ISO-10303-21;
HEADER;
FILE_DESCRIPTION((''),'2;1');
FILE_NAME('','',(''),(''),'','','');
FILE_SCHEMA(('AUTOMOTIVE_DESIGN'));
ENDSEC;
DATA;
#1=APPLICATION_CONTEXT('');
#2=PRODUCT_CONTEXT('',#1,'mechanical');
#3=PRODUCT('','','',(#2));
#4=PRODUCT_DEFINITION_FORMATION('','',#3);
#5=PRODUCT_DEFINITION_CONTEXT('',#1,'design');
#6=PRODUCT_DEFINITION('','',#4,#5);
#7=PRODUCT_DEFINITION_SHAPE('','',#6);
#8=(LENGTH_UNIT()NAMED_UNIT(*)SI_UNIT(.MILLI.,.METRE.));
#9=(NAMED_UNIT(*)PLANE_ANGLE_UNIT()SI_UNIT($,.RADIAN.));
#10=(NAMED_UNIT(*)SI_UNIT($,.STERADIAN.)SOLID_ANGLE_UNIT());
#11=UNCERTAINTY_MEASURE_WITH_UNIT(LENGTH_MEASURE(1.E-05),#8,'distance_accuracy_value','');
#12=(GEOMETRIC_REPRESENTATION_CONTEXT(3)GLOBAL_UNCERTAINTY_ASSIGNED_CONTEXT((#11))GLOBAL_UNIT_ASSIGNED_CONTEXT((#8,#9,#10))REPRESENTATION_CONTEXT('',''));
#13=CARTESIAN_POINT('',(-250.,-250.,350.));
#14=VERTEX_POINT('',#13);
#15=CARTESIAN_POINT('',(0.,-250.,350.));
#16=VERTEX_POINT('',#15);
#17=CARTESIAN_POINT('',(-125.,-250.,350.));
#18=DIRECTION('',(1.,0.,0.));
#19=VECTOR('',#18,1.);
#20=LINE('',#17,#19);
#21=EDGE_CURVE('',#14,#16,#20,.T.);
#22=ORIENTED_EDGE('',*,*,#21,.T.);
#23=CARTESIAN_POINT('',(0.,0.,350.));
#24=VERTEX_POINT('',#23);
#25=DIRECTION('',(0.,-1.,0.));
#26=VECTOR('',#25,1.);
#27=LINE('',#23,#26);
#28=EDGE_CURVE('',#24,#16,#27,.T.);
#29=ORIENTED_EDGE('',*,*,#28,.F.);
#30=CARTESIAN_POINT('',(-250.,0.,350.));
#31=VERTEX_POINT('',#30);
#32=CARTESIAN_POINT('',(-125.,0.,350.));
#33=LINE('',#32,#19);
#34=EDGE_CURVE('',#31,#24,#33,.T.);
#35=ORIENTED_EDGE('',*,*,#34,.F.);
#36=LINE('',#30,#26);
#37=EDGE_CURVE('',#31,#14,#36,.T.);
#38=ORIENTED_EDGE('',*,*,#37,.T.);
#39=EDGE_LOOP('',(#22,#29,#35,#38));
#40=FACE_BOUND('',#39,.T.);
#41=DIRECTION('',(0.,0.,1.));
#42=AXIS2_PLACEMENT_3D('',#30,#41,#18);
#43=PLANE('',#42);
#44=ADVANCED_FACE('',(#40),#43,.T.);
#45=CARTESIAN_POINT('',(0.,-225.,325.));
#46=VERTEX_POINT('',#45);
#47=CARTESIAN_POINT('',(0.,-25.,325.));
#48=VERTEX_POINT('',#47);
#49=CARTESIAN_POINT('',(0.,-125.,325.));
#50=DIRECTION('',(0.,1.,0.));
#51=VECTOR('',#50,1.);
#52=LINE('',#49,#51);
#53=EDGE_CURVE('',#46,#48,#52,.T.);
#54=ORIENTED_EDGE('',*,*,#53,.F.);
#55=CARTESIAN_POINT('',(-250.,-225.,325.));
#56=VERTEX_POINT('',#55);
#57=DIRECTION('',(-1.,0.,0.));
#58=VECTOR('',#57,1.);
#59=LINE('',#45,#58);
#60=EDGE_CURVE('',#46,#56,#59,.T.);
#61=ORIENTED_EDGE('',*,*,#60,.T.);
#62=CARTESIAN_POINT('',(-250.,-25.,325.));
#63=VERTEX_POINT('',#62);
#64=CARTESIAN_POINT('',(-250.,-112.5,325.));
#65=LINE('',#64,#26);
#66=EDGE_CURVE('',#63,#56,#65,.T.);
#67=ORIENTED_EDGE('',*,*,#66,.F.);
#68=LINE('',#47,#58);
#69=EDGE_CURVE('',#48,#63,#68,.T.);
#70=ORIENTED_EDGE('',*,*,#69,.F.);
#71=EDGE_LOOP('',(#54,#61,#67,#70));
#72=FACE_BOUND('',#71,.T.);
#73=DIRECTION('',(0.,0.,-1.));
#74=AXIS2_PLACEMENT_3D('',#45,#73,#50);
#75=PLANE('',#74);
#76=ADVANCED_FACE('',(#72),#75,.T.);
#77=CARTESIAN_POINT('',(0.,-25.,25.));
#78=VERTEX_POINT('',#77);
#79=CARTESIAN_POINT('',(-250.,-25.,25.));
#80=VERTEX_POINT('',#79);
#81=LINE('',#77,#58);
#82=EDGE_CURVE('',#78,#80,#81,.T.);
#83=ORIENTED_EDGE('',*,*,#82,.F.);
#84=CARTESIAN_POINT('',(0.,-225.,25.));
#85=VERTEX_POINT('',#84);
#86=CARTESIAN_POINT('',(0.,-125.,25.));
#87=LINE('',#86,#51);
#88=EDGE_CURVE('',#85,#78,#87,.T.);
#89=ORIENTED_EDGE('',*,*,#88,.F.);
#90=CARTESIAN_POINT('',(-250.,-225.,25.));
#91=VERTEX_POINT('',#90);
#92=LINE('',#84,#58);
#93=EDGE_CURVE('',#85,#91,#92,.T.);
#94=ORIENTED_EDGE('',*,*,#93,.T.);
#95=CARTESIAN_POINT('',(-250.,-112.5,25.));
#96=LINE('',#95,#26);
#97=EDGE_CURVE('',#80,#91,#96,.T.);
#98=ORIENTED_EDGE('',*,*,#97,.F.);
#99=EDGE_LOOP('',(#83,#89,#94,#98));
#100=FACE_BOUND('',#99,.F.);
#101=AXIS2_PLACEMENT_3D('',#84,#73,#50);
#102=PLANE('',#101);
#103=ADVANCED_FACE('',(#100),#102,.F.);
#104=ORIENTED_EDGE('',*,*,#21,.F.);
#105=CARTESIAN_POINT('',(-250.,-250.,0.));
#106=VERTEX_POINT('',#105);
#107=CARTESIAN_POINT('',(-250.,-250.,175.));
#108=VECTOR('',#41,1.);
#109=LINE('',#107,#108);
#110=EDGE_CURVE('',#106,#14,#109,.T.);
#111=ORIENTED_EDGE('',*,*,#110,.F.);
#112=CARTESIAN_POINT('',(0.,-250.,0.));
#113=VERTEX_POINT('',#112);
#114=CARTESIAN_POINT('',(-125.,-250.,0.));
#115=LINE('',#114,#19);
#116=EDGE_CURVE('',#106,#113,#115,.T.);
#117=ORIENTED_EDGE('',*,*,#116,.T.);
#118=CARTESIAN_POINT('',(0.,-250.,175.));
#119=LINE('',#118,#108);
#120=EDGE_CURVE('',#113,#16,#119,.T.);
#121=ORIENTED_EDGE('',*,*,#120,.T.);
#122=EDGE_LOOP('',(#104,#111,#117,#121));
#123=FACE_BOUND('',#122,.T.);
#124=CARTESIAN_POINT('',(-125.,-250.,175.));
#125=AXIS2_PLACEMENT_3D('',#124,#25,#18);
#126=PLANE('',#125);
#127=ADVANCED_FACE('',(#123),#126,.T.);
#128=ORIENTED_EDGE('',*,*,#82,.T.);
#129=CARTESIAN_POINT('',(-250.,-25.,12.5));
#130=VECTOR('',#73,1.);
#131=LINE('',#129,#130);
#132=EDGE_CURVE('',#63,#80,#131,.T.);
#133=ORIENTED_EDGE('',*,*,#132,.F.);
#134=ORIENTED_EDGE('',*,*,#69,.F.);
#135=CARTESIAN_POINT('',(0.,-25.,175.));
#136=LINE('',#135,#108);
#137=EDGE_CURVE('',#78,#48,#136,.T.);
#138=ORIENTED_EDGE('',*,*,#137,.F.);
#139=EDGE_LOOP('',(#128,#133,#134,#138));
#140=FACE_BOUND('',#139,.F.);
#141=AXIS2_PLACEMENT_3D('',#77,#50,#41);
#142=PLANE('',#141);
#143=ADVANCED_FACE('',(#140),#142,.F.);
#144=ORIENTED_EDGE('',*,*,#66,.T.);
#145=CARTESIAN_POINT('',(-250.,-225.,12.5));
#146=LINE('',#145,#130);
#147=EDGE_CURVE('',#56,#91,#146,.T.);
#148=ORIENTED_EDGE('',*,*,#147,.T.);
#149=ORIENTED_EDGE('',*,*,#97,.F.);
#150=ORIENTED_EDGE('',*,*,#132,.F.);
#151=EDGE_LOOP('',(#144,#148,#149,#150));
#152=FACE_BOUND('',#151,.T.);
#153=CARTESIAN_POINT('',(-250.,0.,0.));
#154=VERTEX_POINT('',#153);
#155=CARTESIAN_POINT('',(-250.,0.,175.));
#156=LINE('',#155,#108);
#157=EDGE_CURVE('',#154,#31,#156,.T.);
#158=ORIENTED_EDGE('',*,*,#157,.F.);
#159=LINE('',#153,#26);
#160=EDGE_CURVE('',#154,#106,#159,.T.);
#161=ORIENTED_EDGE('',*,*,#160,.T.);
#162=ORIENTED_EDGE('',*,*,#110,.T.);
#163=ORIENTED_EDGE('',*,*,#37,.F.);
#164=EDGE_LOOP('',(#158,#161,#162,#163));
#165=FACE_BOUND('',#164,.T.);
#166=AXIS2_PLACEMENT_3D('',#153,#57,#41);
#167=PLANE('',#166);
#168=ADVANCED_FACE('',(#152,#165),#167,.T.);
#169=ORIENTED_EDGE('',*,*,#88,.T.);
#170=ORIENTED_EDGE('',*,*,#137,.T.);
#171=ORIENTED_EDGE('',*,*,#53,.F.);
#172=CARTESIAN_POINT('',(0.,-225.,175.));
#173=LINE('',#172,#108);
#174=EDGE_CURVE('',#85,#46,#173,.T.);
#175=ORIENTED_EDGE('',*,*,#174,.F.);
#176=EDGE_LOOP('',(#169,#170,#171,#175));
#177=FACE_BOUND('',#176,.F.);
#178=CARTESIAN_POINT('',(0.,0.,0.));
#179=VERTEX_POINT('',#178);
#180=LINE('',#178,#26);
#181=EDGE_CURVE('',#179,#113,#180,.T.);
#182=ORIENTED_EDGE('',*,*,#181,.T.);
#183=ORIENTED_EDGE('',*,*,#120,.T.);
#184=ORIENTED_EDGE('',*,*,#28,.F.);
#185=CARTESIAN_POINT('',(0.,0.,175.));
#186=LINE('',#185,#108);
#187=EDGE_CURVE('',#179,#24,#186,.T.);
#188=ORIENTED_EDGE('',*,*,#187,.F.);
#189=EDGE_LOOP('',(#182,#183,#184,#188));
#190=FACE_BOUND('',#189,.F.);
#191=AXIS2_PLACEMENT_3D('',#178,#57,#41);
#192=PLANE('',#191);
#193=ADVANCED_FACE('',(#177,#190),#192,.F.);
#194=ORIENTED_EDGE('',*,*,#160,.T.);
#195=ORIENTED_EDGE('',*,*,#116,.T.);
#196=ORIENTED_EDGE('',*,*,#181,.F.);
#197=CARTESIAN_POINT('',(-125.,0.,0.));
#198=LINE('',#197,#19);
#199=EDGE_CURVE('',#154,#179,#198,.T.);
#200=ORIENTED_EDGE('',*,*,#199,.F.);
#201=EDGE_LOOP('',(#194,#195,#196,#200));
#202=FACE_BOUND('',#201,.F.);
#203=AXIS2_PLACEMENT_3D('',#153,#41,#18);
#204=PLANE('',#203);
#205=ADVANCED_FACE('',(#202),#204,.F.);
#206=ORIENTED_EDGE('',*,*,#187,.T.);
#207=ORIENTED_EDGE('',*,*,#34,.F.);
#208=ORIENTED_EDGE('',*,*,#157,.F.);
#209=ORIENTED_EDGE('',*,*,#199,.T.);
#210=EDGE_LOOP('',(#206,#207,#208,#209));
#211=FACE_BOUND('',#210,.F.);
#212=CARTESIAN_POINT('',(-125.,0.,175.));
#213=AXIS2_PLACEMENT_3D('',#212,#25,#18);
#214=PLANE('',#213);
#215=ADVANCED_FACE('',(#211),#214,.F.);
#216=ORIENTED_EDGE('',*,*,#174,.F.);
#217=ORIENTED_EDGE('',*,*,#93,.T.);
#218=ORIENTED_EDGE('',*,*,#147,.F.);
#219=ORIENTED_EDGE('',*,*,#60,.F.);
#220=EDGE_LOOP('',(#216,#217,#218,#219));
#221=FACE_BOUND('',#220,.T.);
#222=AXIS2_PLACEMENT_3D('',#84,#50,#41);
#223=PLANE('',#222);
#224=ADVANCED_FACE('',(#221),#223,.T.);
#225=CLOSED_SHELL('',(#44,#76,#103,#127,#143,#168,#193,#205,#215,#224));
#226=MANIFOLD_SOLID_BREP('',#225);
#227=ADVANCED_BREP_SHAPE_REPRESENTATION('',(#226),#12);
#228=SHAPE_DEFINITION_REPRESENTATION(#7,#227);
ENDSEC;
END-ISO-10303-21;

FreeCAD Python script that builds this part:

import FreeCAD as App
import Part
import Sketcher

doc = App.newDocument("Part")
body = doc.addObject("PartDesign::Body", "Body")

sketch1 = doc.addObject("Sketcher::SketchObject", "Sketch")
body.addObject(sketch1)
sketch1.AttachmentSupport = (doc.XZ_Plane, [""])
sketch1.MapMode = "FlatFace"
sketch1.addGeometry([
    Part.LineSegment(App.Vector(-250, 350, 0), App.Vector(-250, 0, 0)),
    Part.LineSegment(App.Vector(-250, 0, 0), App.Vector(0, 0, 0)),
    Part.LineSegment(App.Vector(0, 0, 0), App.Vector(0, 350, 0)),
    Part.LineSegment(App.Vector(0, 350, 0), App.Vector(-250, 350, 0)),
], False)
sketch1.addConstraint([
    Sketcher.Constraint("Coincident", 0, 2, 1, 1),
    Sketcher.Constraint("Coincident", 1, 2, 2, 1),
    Sketcher.Constraint("Coincident", 2, 2, 3, 1),
    Sketcher.Constraint("Coincident", 3, 2, 0, 1),
    Sketcher.Constraint("Vertical", 0),
    Sketcher.Constraint("Horizontal", 1),
    Sketcher.Constraint("Vertical", 2),
    Sketcher.Constraint("Horizontal", 3),
    Sketcher.Constraint("Coincident", 1, 2, -1, 1),
    Sketcher.Constraint("DistanceX", 1, 1, 1, 2, 250.0),
    Sketcher.Constraint("DistanceY", 0, 2, 0, 1, 350.0),
])
pad1 = doc.addObject("PartDesign::Pad", "Pad")
body.addObject(pad1)
pad1.Profile = sketch1
pad1.Length = 250

sketch2 = doc.addObject("Sketcher::SketchObject", "Sketch001")
body.addObject(sketch2)
sketch2.AttachmentSupport = (doc.YZ_Plane, [""])
sketch2.MapMode = "FlatFace"
sketch2.addGeometry([
    Part.LineSegment(App.Vector(-225, 325, 0), App.Vector(-225, 25, 0)),
    Part.LineSegment(App.Vector(-225, 25, 0), App.Vector(-25, 25, 0)),
    Part.LineSegment(App.Vector(-25, 25, 0), App.Vector(-25, 325, 0)),
    Part.LineSegment(App.Vector(-25, 325, 0), App.Vector(-225, 325, 0)),
], False)
sketch2.addConstraint([
    Sketcher.Constraint("Coincident", 0, 2, 1, 1),
    Sketcher.Constraint("Coincident", 1, 2, 2, 1),
    Sketcher.Constraint("Coincident", 2, 2, 3, 1),
    Sketcher.Constraint("Coincident", 3, 2, 0, 1),
    Sketcher.Constraint("Vertical", 0),
    Sketcher.Constraint("Horizontal", 1),
    Sketcher.Constraint("Vertical", 2),
    Sketcher.Constraint("Horizontal", 3),
    Sketcher.Constraint("DistanceX", 1, 1, 1, 2, 200.0),
    Sketcher.Constraint("DistanceY", 0, 2, 0, 1, 300.0),
    Sketcher.Constraint("DistanceX", 0, 2, -1, 1, 225.0),
    Sketcher.Constraint("DistanceY", -1, 1, 0, 2, 25.0),
])
pocket1 = doc.addObject("PartDesign::Pocket", "Pocket")
body.addObject(pocket1)
pocket1.Profile = sketch2
pocket1.Type = "ThroughAll"

doc.recompute()
